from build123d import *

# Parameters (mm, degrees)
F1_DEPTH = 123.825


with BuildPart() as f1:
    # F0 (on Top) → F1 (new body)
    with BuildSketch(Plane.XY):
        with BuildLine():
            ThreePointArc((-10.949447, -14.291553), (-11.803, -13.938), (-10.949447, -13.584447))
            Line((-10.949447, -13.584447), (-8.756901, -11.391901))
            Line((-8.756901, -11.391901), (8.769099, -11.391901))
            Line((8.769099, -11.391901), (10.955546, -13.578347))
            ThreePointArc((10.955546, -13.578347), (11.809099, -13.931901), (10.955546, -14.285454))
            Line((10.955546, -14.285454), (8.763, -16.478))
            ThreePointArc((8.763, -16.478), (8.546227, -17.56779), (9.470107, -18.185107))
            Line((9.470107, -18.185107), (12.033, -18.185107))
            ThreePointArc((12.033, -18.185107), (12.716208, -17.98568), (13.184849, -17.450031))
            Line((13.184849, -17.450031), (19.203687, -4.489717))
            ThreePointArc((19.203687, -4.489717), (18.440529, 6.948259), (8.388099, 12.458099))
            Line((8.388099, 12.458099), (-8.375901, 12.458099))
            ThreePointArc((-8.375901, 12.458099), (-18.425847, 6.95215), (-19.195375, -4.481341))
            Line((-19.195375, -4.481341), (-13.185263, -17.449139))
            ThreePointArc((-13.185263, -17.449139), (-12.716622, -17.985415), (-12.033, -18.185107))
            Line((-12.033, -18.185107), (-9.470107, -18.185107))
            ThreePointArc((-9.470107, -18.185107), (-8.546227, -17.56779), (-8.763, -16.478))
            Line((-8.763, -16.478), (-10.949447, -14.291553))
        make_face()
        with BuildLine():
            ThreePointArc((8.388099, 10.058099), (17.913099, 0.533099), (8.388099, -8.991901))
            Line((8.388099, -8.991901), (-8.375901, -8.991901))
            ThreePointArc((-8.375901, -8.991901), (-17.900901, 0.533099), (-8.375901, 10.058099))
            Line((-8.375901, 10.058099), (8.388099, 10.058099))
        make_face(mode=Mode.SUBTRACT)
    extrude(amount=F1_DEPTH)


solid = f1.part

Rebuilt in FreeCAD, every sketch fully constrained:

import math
import FreeCAD as App
import Part
import Sketcher

V = App.Vector
Q = App.Units.Quantity

doc = App.newDocument("Part")
body = doc.addObject("PartDesign::Body", "Body")

# Sketch on XY plane
sketch1 = doc.addObject("Sketcher::SketchObject", "Sketch")
body.addObject(sketch1)
sketch1.AttachmentSupport = (doc.XY_Plane, [""])
sketch1.MapMode = "FlatFace"
sketch1.addGeometry([
    Part.ArcOfCircle(Part.Circle(V(-11.3, -13.94, 0), V(0, 0, 1), 0.5), math.radians(45), math.radians(315)),  # 0
    Part.LineSegment(V(-10.95, -13.58, 0), V(-8.76, -11.39, 0)),  # 1
    Part.LineSegment(V(-8.76, -11.39, 0), V(8.77, -11.39, 0)),  # 2
    Part.LineSegment(V(8.77, -11.39, 0), V(10.96, -13.58, 0)),  # 3
    Part.ArcOfCircle(Part.Circle(V(11.31, -13.93, 0), V(0, 0, 1), 0.5), math.radians(-135), math.radians(135)),  # 4
    Part.LineSegment(V(10.96, -14.29, 0), V(8.76, -16.48, 0)),  # 5
    Part.ArcOfCircle(Part.Circle(V(9.47, -17.19, 0), V(0, 0, 1), 1), math.radians(135), math.radians(270)),  # 6
    Part.LineSegment(V(9.47, -18.19, 0), V(12.03, -18.19, 0)),  # 7
    Part.ArcOfCircle(Part.Circle(V(12.03, -16.92, 0), V(0, 0, 1), 1.27), math.radians(-90), math.radians(-25)),  # 8
    Part.LineSegment(V(13.18, -17.45, 0), V(19.2, -4.49, 0)),  # 9
    Part.ArcOfCircle(Part.Circle(V(8.39, 0.53, 0), V(0, 0, 1), 11.92), math.radians(-25), math.radians(90)),  # 10
    Part.LineSegment(V(8.39, 12.46, 0), V(-8.38, 12.46, 0)),  # 11
    Part.ArcOfCircle(Part.Circle(V(-8.38, 0.53, 0), V(0, 0, 1), 11.92), math.radians(90), math.radians(205)),  # 12
    Part.LineSegment(V(-19.2, -4.48, 0), V(-13.19, -17.45, 0)),  # 13
    Part.ArcOfCircle(Part.Circle(V(-12.03, -16.92, 0), V(0, 0, 1), 1.27), math.radians(-155), math.radians(-90)),  # 14
    Part.LineSegment(V(-12.03, -18.19, 0), V(-9.47, -18.19, 0)),  # 15
    Part.ArcOfCircle(Part.Circle(V(-9.47, -17.19, 0), V(0, 0, 1), 1), math.radians(-90), math.radians(45)),  # 16
    Part.LineSegment(V(-8.76, -16.48, 0), V(-10.95, -14.29, 0)),  # 17
    Part.LineSegment(V(-8.38, 10.06, 0), V(8.39, 10.06, 0)),  # 18
    Part.ArcOfCircle(Part.Circle(V(8.39, 0.53, 0), V(0, 0, 1), 9.53), math.radians(-90), math.radians(90)),  # 19
    Part.LineSegment(V(8.39, -8.99, 0), V(-8.38, -8.99, 0)),  # 20
    Part.ArcOfCircle(Part.Circle(V(-8.38, 0.53, 0), V(0, 0, 1), 9.53), math.radians(90), math.radians(270)),  # 21
], False)
sketch1.addConstraint([
    Sketcher.Constraint("Coincident", 0, 1, 1, 1),
    Sketcher.Constraint("Coincident", 1, 2, 2, 1),
    Sketcher.Constraint("Coincident", 2, 2, 3, 1),
    Sketcher.Constraint("Coincident", 3, 2, 4, 2),
    Sketcher.Constraint("Coincident", 4, 1, 5, 1),
    Sketcher.Constraint("Tangent", 5, 2, 6, 1),
    Sketcher.Constraint("Tangent", 6, 2, 7, 1),
    Sketcher.Constraint("Tangent", 7, 2, 8, 1),
    Sketcher.Constraint("Tangent", 8, 2, 9, 1),
    Sketcher.Constraint("Tangent", 9, 2, 10, 1),
    Sketcher.Constraint("Tangent", 10, 2, 11, 1),
    Sketcher.Constraint("Tangent", 11, 2, 12, 1),
    Sketcher.Constraint("Tangent", 12, 2, 13, 1),
    Sketcher.Constraint("Tangent", 13, 2, 14, 1),
    Sketcher.Constraint("Tangent", 14, 2, 15, 1),
    Sketcher.Constraint("Tangent", 15, 2, 16, 1),
    Sketcher.Constraint("Tangent", 16, 2, 17, 1),
    Sketcher.Constraint("Coincident", 17, 2, 0, 2),
    Sketcher.Constraint("Tangent", 18, 2, 19, 2),
    Sketcher.Constraint("Tangent", 19, 1, 20, 1),
    Sketcher.Constraint("Tangent", 20, 2, 21, 2),
    Sketcher.Constraint("Tangent", 21, 1, 18, 1),
    Sketcher.Constraint("Horizontal", 2),
    Sketcher.Constraint("Horizontal", 7),
    Sketcher.Constraint("Horizontal", 11),
    Sketcher.Constraint("Horizontal", 15),
    Sketcher.Constraint("Horizontal", 18),
    Sketcher.Constraint("Horizontal", 20),
    Sketcher.Constraint("Coincident", 19, 3, 10, 3),
    Sketcher.Constraint("Coincident", 21, 3, 12, 3),
    Sketcher.Constraint("Equal", 0, 4),
    Sketcher.Constraint("Equal", 6, 16),
    Sketcher.Constraint("Symmetric", 8, 3, 14, 3, -2),
    Sketcher.Constraint("Symmetric", 6, 3, 16, 3, -2),
    Sketcher.Constraint("Perpendicular", 1, 3),
    Sketcher.Constraint("Perpendicular", 3, 5),
    Sketcher.Constraint("Perpendicular", 5, 17),
    Sketcher.Constraint("Horizontal", 5, 2, 16, 2),
    Sketcher.Constraint("Vertical", 3, 2, 4, 1),
    Sketcher.Constraint("Vertical", 0, 1, 17, 2),
    Sketcher.Constraint("Equal", 1, 5),
    Sketcher.Constraint("Equal", 3, 17),
    Sketcher.Constraint("Radius", 8, Q("0.05 in")),
    Sketcher.Constraint("Radius", 19, Q("0.375 in")),
    Sketcher.Constraint("DistanceX", 2, 1, 2, 2, Q("0.69 in")),
    Sketcher.Constraint("DistanceX", 11, 2, 11, 1, Q("0.66 in")),
    Sketcher.Constraint("DistanceX", 2, 2, 4, 3, Q("0.1 in")),
    Sketcher.Constraint("DistanceY", 4, 3, 2, 2, Q("0.1 in")),
    Sketcher.Constraint("Radius", 0, 0.5),
    Sketcher.Constraint("Radius", 6, 1.0),
    Sketcher.Constraint("Radius", 10, 11.925),
    Sketcher.Constraint("DistanceX", 10, 3, 4, 3, Q("0.115 in")),
    Sketcher.Constraint("DistanceY", 4, 3, -1, 1, Q("0.5485 in")),
    Sketcher.Constraint("DistanceX", 4, 3, 8, 3, Q("0.0285 in")),
    Sketcher.Constraint("DistanceY", 0, 3, -1, 1, 13.938),
    Sketcher.Constraint("DistanceY", -1, 1, 10, 3, 0.533099),
])
pad1 = doc.addObject("PartDesign::Pad", "Pad")
body.addObject(pad1)
pad1.Profile = sketch1
pad1.Length = Q("4.875 in")

doc.recompute()
